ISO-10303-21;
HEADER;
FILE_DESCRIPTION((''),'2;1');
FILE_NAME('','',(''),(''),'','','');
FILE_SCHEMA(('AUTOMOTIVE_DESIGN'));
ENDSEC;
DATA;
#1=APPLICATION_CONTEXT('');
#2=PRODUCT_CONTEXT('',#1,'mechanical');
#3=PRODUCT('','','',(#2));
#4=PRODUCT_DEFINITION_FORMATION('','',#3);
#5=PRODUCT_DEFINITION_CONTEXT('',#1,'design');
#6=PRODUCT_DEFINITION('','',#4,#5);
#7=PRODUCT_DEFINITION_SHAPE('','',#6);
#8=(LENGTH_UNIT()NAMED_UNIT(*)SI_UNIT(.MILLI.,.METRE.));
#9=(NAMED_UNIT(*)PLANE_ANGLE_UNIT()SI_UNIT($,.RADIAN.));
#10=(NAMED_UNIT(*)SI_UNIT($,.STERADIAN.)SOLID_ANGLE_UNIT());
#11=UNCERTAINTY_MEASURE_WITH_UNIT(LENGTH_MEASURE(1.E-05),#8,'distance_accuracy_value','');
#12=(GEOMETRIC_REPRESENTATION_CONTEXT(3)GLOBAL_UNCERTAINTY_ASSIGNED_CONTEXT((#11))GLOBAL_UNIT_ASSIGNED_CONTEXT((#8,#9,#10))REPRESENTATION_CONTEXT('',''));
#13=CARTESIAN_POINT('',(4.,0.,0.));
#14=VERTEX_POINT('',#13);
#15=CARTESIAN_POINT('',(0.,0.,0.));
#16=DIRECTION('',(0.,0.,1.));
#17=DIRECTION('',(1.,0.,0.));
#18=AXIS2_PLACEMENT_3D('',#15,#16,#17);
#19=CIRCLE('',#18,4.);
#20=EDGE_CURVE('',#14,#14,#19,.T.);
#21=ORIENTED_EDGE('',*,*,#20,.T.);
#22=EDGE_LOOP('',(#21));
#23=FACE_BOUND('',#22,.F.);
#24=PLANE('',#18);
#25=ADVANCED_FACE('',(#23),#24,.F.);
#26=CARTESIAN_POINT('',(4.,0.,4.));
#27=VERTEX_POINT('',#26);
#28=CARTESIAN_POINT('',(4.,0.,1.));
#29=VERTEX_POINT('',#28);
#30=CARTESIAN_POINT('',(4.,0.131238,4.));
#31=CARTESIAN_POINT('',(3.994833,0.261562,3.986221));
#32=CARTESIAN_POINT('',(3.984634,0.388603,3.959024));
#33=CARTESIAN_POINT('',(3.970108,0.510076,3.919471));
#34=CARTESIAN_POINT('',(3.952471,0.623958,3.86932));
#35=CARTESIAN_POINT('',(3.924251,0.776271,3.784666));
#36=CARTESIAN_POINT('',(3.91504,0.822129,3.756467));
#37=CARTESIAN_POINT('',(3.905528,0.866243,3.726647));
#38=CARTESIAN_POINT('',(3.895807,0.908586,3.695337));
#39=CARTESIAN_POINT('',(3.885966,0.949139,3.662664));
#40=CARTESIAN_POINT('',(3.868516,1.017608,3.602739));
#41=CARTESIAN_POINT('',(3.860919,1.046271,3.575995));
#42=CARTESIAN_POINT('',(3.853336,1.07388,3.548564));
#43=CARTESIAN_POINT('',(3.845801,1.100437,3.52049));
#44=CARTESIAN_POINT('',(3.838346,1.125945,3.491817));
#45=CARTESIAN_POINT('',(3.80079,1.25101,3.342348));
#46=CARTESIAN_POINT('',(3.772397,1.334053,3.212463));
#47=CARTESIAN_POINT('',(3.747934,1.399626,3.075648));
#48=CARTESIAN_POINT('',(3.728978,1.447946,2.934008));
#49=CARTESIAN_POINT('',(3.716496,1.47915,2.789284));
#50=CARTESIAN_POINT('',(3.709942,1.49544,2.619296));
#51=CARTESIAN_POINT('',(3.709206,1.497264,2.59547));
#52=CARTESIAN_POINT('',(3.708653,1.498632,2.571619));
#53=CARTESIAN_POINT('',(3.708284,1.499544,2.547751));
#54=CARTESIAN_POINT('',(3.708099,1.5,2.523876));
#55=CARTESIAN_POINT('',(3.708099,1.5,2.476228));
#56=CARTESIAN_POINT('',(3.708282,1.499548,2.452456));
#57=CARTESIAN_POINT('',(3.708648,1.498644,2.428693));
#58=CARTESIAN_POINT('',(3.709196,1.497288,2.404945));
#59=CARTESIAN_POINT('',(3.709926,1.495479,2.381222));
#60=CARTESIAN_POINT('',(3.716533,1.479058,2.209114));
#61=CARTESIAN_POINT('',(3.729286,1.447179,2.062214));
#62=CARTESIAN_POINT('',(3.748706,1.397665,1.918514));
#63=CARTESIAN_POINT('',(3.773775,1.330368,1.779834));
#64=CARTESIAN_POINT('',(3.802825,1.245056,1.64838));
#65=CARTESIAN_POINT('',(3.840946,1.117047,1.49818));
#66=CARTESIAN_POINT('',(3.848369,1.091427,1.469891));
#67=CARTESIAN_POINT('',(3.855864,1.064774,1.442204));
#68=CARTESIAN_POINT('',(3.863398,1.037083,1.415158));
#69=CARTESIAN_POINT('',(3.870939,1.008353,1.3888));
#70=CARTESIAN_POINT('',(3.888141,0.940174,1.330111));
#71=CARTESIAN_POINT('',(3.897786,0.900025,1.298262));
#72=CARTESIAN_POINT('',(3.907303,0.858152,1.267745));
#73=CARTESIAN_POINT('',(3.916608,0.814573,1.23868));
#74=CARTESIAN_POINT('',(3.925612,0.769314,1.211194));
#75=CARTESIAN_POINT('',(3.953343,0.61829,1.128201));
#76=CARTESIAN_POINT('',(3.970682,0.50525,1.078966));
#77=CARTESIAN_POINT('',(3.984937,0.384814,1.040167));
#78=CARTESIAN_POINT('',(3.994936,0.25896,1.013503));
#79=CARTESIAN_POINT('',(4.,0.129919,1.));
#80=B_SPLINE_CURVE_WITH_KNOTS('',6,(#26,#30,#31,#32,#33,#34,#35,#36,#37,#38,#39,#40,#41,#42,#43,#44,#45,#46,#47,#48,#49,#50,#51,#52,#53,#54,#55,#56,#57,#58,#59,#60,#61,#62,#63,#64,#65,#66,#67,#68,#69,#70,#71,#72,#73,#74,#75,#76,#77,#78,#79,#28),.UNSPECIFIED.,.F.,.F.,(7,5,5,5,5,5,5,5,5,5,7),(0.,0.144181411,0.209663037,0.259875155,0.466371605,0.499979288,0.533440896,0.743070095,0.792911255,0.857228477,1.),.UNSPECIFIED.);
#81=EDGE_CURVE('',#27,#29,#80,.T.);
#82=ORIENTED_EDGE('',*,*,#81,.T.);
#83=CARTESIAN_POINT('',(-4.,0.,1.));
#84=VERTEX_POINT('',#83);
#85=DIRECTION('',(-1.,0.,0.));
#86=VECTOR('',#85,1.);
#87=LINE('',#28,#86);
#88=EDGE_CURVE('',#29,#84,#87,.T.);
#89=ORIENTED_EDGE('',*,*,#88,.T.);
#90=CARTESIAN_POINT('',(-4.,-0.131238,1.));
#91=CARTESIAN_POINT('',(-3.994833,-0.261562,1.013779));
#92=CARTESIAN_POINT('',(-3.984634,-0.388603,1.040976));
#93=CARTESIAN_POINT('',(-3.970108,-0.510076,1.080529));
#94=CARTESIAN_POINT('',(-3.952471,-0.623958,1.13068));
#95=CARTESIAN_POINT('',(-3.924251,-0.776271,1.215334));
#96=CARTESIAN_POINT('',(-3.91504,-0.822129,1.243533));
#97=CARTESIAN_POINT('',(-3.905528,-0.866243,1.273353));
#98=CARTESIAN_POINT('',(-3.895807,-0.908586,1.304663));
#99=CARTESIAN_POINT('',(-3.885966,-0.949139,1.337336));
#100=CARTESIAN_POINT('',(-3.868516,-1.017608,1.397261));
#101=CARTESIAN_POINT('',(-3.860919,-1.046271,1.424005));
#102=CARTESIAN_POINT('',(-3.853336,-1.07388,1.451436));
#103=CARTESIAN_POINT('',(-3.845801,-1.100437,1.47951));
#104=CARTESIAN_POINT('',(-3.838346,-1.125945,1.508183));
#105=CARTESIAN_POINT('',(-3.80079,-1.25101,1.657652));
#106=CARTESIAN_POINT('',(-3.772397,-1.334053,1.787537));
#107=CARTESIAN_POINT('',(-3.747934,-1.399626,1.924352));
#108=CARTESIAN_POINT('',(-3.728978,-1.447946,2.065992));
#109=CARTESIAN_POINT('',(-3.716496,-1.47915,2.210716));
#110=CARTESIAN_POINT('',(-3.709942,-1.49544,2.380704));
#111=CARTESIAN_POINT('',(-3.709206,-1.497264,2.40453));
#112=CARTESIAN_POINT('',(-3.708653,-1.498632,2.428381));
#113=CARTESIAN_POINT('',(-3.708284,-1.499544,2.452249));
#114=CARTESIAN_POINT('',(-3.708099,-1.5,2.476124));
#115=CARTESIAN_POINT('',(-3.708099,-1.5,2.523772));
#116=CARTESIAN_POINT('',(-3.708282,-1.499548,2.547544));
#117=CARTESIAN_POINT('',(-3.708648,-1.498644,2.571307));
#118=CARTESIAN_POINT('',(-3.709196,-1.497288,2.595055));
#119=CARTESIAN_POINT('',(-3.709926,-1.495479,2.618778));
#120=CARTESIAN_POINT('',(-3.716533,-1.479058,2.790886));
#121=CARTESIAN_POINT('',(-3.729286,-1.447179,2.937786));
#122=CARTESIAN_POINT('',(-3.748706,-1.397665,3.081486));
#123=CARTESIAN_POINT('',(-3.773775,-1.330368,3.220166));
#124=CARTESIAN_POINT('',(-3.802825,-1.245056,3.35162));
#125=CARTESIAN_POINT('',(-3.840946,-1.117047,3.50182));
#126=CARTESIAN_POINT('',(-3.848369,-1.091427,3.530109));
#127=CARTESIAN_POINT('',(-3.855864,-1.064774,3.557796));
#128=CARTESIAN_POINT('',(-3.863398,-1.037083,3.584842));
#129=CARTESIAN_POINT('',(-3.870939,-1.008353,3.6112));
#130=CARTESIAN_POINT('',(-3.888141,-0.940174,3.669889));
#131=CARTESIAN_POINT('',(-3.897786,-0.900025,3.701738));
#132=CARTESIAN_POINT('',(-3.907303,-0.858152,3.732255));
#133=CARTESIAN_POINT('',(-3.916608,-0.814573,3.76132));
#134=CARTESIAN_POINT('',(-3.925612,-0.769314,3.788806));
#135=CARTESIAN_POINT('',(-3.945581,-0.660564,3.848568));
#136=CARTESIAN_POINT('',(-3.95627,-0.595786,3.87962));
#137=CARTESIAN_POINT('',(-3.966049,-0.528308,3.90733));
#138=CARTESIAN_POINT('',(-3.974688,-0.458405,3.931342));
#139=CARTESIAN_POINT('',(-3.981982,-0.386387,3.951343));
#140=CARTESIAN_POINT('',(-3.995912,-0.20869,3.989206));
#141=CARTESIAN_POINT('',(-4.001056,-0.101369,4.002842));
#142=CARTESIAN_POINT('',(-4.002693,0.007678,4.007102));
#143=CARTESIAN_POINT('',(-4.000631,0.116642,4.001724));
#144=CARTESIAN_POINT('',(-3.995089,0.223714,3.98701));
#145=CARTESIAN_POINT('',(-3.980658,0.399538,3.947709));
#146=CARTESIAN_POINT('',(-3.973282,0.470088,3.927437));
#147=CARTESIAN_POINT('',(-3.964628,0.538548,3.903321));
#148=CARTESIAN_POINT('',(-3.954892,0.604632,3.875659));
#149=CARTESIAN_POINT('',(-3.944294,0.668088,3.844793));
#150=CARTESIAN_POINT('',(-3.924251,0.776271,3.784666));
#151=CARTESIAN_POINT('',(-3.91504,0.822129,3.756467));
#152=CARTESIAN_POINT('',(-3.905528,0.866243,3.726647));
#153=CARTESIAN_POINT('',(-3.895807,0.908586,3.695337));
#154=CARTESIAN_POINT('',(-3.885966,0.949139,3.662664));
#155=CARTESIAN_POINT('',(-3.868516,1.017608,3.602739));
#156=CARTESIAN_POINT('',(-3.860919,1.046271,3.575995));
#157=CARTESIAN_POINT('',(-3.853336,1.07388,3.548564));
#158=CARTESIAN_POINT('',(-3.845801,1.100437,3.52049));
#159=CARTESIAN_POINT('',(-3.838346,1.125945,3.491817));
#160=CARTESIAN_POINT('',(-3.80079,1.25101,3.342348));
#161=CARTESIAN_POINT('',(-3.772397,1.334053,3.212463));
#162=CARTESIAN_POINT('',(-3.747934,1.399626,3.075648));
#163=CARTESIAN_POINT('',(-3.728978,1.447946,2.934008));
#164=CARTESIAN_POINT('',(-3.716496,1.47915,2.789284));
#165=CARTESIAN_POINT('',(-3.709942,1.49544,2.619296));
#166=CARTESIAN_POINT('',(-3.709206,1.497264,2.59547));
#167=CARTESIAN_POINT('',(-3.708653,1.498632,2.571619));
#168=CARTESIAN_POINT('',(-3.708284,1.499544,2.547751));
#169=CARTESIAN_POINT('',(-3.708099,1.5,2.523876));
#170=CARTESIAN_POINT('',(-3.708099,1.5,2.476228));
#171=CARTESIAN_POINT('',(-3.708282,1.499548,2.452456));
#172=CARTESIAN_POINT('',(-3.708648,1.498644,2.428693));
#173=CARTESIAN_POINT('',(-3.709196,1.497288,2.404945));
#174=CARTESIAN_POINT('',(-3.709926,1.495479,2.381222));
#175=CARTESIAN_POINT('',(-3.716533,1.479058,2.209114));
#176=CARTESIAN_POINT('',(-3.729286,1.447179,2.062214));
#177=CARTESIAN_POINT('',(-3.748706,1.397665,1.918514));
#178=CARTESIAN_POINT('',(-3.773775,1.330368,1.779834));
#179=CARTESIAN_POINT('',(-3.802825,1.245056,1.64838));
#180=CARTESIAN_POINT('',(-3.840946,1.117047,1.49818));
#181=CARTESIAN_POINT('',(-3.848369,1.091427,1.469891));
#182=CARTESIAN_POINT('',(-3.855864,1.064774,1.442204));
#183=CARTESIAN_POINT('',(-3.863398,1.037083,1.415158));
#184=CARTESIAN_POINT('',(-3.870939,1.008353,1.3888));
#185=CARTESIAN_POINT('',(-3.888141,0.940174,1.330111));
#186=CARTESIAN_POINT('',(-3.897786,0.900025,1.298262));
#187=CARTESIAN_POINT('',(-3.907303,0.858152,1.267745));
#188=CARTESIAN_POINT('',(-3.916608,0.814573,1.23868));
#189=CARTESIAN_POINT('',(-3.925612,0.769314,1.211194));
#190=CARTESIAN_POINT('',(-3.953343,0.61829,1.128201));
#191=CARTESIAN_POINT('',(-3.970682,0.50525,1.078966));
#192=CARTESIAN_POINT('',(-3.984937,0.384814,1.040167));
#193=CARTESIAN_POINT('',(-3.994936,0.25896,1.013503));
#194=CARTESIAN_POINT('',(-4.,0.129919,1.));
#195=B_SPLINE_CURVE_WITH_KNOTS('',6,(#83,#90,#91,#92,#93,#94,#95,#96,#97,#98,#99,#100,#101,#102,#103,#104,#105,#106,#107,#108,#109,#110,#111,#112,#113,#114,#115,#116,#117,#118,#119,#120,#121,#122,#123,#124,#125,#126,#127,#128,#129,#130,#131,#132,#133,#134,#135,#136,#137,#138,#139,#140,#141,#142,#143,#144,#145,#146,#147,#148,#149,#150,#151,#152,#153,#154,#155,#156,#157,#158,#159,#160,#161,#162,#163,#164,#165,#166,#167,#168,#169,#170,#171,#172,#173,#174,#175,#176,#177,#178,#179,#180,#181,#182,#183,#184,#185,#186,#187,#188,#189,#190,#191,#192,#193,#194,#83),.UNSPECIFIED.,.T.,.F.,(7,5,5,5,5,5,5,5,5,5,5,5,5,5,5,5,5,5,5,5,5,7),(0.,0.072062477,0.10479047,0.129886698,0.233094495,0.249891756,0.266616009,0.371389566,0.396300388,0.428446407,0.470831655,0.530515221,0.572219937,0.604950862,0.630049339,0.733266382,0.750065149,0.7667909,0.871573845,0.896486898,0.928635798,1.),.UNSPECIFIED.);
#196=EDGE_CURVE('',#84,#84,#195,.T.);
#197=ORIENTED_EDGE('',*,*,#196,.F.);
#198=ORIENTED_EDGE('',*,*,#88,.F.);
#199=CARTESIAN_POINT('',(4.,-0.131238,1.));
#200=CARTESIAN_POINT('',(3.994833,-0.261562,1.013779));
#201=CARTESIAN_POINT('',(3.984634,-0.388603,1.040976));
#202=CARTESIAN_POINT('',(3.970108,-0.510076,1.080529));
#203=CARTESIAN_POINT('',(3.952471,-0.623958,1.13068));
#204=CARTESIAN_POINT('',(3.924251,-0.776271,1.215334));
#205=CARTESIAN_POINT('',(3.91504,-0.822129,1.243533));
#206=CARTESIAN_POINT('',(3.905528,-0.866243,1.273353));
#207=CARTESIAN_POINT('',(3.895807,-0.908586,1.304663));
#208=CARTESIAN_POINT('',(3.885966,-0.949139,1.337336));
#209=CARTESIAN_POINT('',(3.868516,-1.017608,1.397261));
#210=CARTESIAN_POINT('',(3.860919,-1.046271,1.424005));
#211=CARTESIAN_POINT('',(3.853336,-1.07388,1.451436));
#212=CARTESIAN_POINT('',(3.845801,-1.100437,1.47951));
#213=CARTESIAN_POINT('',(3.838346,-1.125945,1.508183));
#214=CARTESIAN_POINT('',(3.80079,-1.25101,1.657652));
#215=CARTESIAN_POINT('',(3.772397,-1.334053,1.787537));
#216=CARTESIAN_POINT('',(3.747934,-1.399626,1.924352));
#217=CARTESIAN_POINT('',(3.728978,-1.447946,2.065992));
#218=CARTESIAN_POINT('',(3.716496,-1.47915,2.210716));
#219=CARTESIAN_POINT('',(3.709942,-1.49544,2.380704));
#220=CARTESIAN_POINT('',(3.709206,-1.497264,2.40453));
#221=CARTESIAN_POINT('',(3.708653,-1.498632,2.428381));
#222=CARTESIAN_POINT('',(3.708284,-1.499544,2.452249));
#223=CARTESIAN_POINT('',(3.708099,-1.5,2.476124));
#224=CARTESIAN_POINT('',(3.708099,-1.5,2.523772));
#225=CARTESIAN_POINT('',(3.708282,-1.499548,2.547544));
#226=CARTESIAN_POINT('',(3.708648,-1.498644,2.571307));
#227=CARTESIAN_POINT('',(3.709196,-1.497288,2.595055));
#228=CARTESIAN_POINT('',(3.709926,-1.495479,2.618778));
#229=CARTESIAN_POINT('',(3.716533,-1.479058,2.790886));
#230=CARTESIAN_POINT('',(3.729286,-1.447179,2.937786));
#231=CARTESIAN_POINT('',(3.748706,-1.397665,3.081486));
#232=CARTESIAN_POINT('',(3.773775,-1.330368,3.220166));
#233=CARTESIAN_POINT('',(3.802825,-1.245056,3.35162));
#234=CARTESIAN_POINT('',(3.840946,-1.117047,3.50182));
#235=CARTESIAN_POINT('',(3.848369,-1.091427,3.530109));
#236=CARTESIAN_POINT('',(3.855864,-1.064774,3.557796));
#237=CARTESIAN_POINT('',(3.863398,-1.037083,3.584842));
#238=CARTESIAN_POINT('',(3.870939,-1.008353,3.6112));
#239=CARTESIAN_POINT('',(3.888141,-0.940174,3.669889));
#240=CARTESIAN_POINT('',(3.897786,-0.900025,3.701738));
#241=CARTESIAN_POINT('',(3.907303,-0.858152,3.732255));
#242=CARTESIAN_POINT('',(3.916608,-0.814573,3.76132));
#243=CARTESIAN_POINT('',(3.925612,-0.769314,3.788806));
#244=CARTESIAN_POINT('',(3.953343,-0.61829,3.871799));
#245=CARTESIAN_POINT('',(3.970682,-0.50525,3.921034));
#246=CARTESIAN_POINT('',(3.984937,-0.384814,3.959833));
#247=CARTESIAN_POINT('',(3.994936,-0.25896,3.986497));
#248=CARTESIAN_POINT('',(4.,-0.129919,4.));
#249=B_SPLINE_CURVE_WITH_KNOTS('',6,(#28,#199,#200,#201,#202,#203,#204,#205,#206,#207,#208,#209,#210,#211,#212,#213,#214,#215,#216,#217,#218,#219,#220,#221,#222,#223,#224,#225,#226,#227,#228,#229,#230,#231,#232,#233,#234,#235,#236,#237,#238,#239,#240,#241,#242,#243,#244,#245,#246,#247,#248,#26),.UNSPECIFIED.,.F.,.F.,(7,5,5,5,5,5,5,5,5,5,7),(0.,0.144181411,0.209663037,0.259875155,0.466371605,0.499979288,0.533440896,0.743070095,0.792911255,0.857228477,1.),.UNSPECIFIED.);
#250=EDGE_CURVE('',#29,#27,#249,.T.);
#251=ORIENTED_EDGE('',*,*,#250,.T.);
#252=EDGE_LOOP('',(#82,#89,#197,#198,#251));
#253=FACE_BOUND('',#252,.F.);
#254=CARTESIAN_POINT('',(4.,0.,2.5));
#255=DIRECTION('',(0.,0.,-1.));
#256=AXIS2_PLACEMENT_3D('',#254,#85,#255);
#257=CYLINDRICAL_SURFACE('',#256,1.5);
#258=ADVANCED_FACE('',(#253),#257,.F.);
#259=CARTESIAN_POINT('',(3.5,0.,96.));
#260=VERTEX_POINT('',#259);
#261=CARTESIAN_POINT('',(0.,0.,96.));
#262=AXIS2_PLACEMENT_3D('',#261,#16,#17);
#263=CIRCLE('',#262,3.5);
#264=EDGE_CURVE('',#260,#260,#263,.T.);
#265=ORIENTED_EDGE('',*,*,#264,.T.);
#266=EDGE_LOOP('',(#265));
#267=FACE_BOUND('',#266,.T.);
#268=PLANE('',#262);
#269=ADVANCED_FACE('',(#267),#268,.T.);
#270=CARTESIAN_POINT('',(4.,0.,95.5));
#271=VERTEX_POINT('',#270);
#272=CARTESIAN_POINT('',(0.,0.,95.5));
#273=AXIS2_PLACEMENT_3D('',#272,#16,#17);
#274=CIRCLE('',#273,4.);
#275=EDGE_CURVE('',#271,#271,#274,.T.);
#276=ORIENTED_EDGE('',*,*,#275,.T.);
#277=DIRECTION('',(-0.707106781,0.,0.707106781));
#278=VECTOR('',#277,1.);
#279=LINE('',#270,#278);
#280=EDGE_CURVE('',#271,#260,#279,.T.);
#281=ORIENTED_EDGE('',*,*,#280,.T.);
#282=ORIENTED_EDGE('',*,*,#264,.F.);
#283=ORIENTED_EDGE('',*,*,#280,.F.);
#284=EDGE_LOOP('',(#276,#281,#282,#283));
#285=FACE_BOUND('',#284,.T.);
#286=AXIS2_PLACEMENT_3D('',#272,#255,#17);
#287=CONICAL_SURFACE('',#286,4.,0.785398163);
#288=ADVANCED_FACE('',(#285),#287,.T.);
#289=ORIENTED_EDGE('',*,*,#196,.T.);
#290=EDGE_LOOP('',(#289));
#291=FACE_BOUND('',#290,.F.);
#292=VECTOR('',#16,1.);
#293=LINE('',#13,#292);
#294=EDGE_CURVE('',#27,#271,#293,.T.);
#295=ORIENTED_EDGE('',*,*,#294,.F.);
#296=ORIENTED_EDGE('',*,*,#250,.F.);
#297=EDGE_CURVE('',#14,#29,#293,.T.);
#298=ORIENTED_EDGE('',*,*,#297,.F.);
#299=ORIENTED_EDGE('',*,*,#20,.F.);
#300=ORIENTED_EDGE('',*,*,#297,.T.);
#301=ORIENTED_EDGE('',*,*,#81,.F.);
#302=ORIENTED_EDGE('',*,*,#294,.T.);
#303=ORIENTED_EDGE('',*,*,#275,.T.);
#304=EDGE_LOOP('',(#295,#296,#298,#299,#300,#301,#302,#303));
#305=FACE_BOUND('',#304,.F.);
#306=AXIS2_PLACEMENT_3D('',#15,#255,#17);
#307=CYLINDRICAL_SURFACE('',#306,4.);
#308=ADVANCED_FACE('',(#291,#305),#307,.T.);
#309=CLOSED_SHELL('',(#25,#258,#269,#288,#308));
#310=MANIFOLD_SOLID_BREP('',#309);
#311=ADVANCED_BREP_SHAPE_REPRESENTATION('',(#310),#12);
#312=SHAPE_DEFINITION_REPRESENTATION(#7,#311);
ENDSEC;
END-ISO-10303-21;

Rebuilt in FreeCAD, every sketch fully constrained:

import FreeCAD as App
import Part
import Sketcher
from FreeCAD import Vector


def edges_at(feature, points):
    """Names of the edges that pass closest to the given points."""
    edges = feature.Shape.Edges
    near = lambda p: min(range(len(edges)), key=lambda i: edges[i].distToShape(Part.Vertex(*p))[0])
    return sorted({f"Edge{near(p) + 1}" for p in points})

doc = App.newDocument("Part")
body = doc.addObject("PartDesign::Body", "Body")

# Sketch on XY plane
sketch1 = body.newObject("Sketcher::SketchObject", "Sketch")
sketch1.AttachmentSupport = (doc.getObject("XY_Plane"), [""])
sketch1.MapMode = "FlatFace"
sketch1.addGeometry(Part.Circle(Vector(0, 0, 0), Vector(0, 0, 1), 4), False)
sketch1.addConstraint([
    Sketcher.Constraint("Coincident", 0, 3, -1, 1),
    Sketcher.Constraint("Diameter", 0, 8.0),
])
pad1 = body.newObject("PartDesign::Pad", "Pad")
pad1.Profile = sketch1
pad1.Length = 96

# Sketch on YZ plane
sketch2 = body.newObject("Sketcher::SketchObject", "Sketch001")
sketch2.AttachmentSupport = (doc.getObject("YZ_Plane"), [""])
sketch2.MapMode = "FlatFace"
sketch2.AttachmentOffset = App.Placement(Vector(0, 0, 4), App.Rotation())
sketch2.addGeometry(Part.Circle(Vector(0, 2.5, 0), Vector(0, 0, 1), 1.5), False)
sketch2.addConstraint([
    Sketcher.Constraint("PointOnObject", 0, 3, -2),
    Sketcher.Constraint("Diameter", 0, 3.0),
    Sketcher.Constraint("DistanceY", -1, 1, 0, 3, 2.5),
])
doc.recompute()
hole = body.newObject("PartDesign::Hole", "Hole")
hole.Profile = sketch2
hole.ThreadType = "None"
hole.Diameter = 3
hole.DepthType = "ThroughAll"
doc.recompute()

chamfer = body.newObject("PartDesign::Chamfer", "Chamfer")
chamfer.Base = (hole, edges_at(hole, [(-4, 0, 96)]))
chamfer.Size = 0.5

doc.recompute()
